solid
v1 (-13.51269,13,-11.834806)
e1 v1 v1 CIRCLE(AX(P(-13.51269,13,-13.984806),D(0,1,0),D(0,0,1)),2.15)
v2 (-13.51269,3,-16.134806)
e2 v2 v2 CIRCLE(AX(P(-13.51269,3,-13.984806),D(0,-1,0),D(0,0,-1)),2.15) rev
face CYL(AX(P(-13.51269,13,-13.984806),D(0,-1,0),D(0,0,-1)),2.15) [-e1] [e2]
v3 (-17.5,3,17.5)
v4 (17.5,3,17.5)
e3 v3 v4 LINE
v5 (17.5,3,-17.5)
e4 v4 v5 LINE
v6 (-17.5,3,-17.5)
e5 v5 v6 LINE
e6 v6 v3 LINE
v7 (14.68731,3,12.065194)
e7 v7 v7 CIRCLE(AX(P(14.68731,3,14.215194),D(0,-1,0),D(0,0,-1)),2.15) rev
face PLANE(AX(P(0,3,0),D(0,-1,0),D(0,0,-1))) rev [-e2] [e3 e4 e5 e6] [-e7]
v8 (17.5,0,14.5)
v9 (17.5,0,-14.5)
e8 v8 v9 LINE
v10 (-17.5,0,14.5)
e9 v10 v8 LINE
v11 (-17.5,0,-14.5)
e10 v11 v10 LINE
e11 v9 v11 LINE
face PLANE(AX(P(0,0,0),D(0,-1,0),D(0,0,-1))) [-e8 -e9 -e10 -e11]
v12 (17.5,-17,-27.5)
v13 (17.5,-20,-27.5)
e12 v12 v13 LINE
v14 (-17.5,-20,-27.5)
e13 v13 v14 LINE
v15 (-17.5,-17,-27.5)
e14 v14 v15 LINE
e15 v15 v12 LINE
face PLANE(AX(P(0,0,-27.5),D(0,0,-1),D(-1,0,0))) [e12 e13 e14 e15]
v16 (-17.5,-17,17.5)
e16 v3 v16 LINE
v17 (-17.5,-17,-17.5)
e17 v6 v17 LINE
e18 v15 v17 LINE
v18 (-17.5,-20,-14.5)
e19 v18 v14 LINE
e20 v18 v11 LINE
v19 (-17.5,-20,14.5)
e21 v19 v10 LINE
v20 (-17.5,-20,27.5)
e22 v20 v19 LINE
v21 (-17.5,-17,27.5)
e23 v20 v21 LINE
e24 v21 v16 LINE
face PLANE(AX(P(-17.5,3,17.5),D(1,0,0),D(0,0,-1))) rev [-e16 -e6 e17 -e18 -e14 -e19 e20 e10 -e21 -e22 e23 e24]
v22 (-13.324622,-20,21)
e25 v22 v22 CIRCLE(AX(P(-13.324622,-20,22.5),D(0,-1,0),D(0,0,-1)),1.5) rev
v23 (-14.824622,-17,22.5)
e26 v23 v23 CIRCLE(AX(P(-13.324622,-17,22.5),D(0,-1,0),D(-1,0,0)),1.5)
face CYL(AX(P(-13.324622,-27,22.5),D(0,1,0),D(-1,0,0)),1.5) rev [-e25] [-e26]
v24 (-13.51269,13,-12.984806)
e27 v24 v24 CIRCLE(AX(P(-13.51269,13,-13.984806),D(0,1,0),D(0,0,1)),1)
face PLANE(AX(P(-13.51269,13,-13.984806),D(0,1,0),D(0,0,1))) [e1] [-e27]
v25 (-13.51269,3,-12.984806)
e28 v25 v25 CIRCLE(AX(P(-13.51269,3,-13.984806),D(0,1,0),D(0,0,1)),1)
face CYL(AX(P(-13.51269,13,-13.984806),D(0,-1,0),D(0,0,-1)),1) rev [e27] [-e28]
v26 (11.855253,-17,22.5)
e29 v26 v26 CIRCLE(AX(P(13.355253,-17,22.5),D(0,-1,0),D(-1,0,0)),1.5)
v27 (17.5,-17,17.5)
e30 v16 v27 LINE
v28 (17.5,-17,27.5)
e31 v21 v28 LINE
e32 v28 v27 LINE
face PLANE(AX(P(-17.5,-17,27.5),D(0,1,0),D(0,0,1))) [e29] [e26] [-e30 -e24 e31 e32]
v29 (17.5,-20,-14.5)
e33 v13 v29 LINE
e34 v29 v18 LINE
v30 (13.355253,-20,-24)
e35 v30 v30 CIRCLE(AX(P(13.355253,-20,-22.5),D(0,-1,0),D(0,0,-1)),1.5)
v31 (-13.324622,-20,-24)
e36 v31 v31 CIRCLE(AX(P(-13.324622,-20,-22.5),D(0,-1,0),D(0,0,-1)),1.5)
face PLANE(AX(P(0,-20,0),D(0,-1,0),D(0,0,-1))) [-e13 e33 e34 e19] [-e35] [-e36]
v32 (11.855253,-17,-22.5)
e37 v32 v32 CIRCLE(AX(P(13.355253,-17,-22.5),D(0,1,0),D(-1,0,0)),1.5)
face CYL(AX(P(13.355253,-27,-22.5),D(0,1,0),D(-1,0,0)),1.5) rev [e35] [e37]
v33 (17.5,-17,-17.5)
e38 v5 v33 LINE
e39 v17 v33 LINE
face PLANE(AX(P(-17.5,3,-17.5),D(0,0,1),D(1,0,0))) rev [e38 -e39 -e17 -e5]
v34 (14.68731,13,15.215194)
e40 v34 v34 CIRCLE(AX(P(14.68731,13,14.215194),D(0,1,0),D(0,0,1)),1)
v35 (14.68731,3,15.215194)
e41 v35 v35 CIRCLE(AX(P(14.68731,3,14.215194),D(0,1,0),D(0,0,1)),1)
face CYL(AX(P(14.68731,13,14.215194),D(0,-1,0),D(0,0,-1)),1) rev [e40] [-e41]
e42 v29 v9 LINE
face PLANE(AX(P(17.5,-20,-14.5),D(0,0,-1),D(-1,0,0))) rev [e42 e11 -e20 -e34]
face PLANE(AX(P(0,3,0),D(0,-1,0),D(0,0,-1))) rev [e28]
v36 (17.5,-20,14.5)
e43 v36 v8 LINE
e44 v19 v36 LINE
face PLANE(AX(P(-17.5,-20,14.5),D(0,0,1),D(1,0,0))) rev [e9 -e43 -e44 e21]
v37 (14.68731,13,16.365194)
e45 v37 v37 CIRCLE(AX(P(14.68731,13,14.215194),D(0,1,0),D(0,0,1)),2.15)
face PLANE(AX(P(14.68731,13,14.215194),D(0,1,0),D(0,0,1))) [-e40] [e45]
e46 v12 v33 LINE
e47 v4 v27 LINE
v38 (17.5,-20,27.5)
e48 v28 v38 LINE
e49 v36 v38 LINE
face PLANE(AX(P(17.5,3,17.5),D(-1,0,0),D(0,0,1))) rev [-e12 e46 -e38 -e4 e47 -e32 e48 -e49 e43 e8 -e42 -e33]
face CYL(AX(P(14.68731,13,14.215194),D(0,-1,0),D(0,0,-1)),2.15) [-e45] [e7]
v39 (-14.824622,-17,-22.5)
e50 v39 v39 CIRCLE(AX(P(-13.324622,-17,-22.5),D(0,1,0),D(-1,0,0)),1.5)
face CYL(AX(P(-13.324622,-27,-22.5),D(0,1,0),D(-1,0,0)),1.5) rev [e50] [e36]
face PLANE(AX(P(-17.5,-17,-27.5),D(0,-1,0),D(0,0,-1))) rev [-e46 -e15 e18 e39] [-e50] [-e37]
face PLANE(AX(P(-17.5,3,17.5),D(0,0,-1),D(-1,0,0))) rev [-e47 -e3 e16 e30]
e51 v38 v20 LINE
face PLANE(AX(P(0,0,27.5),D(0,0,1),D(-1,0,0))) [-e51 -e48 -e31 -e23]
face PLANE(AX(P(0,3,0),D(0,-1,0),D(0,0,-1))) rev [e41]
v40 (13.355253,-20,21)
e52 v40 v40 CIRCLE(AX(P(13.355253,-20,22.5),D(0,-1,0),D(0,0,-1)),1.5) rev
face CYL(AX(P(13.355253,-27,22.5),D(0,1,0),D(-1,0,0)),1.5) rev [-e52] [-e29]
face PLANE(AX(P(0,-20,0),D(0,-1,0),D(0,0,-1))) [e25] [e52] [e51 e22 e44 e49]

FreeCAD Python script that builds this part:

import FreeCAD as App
import Part
import Sketcher
from FreeCAD import Vector
Q = App.Units.Quantity


def add_polygon(sketch, points):
    """Adds a closed chain of lines whose ends are joined by coincident constraints."""
    first, n = sketch.GeometryCount, len(points)
    for a, b in zip(points, points[1:] + points[:1]):
        sketch.addGeometry(Part.LineSegment(App.Vector(*a, 0), App.Vector(*b, 0)), False)
    for i in range(n):
        sketch.addConstraint(Sketcher.Constraint("Coincident", first + i, 2, first + (i + 1) % n, 1))

doc = App.newDocument("Part")
body = doc.addObject("PartDesign::Body", "Body")

# Sketch on XZ plane
sketch1 = body.newObject("Sketcher::SketchObject", "Sketch")
sketch1.AttachmentSupport = (doc.getObject("XZ_Plane"), [""])
sketch1.MapMode = "FlatFace"
add_polygon(sketch1, [(-18, -18), (-18, 18), (18, 18), (18, -18)])  # lines 0-3
sketch1.addConstraint(Sketcher.Constraint("Vertical", 0))
sketch1.addConstraint(Sketcher.Constraint("Horizontal", 1))
sketch1.addConstraint(Sketcher.Constraint("Vertical", 2))
sketch1.addConstraint(Sketcher.Constraint("Horizontal", 3))
sketch1.addConstraint(Sketcher.Constraint("Symmetric", 0, 2, 2, 2, -1, 1))
sketch1.addConstraint(Sketcher.Constraint("Equal", 3, 0))
sketch1.addConstraint(Sketcher.Constraint("DistanceX", 1, 1, 1, 2, Q("35 mm")))
pad1 = body.newObject("PartDesign::Pad", "Pad")
pad1.Profile = sketch1
pad1.Length = 3
pad1.Reversed = True

# Sketch on XZ plane
sketch2 = body.newObject("Sketcher::SketchObject", "Sketch001")
sketch2.AttachmentSupport = (doc.getObject("XZ_Plane"), [""])
sketch2.MapMode = "FlatFace"
sketch2.AttachmentOffset = App.Placement(Vector(0, 0, -3), App.Rotation())
sketch2.addGeometry(Part.Circle(Vector(-13.5, -14, 0), Vector(0, 0, 1), 2.1), False)
sketch2.addGeometry(Part.Circle(Vector(-13.5, -14, 0), Vector(0, 0, 1), 1), False)
sketch2.addGeometry(Part.Circle(Vector(14.7, 14.2, 0), Vector(0, 0, 1), 2.1), False)
sketch2.addGeometry(Part.Circle(Vector(14.7, 14.2, 0), Vector(0, 0, 1), 1), False)
sketch2.addConstraint(Sketcher.Constraint("Coincident", 1, 3, 0, 3))
sketch2.addConstraint(Sketcher.Constraint("Coincident", 3, 3, 2, 3))
sketch2.addConstraint(Sketcher.Constraint("Equal", 0, 2))
sketch2.addConstraint(Sketcher.Constraint("Equal", 1, 3))
sketch2.addConstraint(Sketcher.Constraint("Diameter", 1, Q("2 mm")))
sketch2.addConstraint(Sketcher.Constraint("Diameter", 0, Q("4.3 mm")))
sketch2.addConstraint(Sketcher.Constraint("DistanceX", 0, 3, 2, 3, Q("28.2 mm")))
sketch2.addConstraint(Sketcher.Constraint("DistanceY", 0, 3, 2, 3, Q("28.2 mm")))
sketch2.addConstraint(Sketcher.Constraint("DistanceX", 0, 3, -1, 1, Q("13.51269 mm")))
sketch2.addConstraint(Sketcher.Constraint("DistanceY", 0, 3, -1, 1, Q("13.984806 mm")))
pad2 = body.newObject("PartDesign::Pad", "Pad001")
pad2.Profile = sketch2
pad2.Length = 10
pad2.Reversed = True

# Sketch on XZ plane
sketch3 = body.newObject("Sketcher::SketchObject", "Sketch002")
sketch3.AttachmentSupport = (doc.getObject("XZ_Plane"), [""])
sketch3.MapMode = "FlatFace"
add_polygon(sketch3, [(-17.5, 17.5), (-17.5, 14.5), (17.5, 14.5), (17.5, 17.5)])  # lines 0-3
add_polygon(sketch3, [(-17.5, -14.5), (-17.5, -17.5), (17.5, -17.5), (17.5, -14.5)])  # lines 4-7
sketch3.addConstraint(Sketcher.Constraint("Vertical", 0))
sketch3.addConstraint(Sketcher.Constraint("Horizontal", 1))
sketch3.addConstraint(Sketcher.Constraint("Vertical", 2))
sketch3.addConstraint(Sketcher.Constraint("Horizontal", 3))
sketch3.addConstraint(Sketcher.Constraint("Vertical", 4))
sketch3.addConstraint(Sketcher.Constraint("Horizontal", 5))
sketch3.addConstraint(Sketcher.Constraint("Vertical", 6))
sketch3.addConstraint(Sketcher.Constraint("Horizontal", 7))
sketch3.addConstraint(Sketcher.Constraint("Symmetric", 2, 2, 4, 2, -1, 1))
sketch3.addConstraint(Sketcher.Constraint("Symmetric", 0, 2, 6, 2, -1, 1))
sketch3.addConstraint(Sketcher.Constraint("Vertical", 3, 2, 4, 2))
sketch3.addConstraint(Sketcher.Constraint("DistanceX", 1, 1, 1, 2, Q("35 mm")))
sketch3.addConstraint(Sketcher.Constraint("DistanceY", 0, 2, 0, 1, Q("3 mm")))
sketch3.addConstraint(Sketcher.Constraint("DistanceY", 4, 2, 0, 2, Q("32 mm")))
pad3 = body.newObject("PartDesign::Pad", "Pad002")
pad3.Profile = sketch3
pad3.Length = 20

# Sketch on XY plane
sketch4 = body.newObject("Sketcher::SketchObject", "Sketch003")
sketch4.AttachmentSupport = (doc.getObject("XY_Plane"), [""])
sketch4.MapMode = "FlatFace"
sketch4.AttachmentOffset = App.Placement(Vector(0, 0, -17.5), App.Rotation())
add_polygon(sketch4, [(17.5, -17), (17.5, -20), (-17.5, -20), (-17.5, -17)])  # lines 0-3
sketch4.addConstraint(Sketcher.Constraint("Vertical", 0))
sketch4.addConstraint(Sketcher.Constraint("Horizontal", 1))
sketch4.addConstraint(Sketcher.Constraint("Vertical", 2))
sketch4.addConstraint(Sketcher.Constraint("Horizontal", 3))
sketch4.addConstraint(Sketcher.Constraint("DistanceX", 1, 2, 1, 1, Q("35 mm")))
sketch4.addConstraint(Sketcher.Constraint("DistanceY", 0, 2, 0, 1, Q("3 mm")))
sketch4.addConstraint(Sketcher.Constraint("DistanceY", 0, 2, -1, 1, Q("20 mm")))
sketch4.addConstraint(Sketcher.Constraint("DistanceX", -1, 1, 0, 2, Q("17.5 mm")))
pad4 = body.newObject("PartDesign::Pad", "Pad003")
pad4.Profile = sketch4
pad4.Length = 10
pad4.Reversed = True

# Sketch on XZ plane
sketch5 = body.newObject("Sketcher::SketchObject", "Sketch004")
sketch5.AttachmentSupport = (doc.getObject("XZ_Plane"), [""])
sketch5.MapMode = "FlatFace"
sketch5.AttachmentOffset = App.Placement(Vector(0, 0, 17), App.Rotation())
sketch5.addGeometry(Part.Circle(Vector(-13.3, -22.5, 0), Vector(0, 0, 1), 1.5), False)
sketch5.addGeometry(Part.Circle(Vector(13.4, -22.5, 0), Vector(0, 0, 1), 1.5), False)
sketch5.addConstraint(Sketcher.Constraint("Equal", 0, 1))
sketch5.addConstraint(Sketcher.Constraint("Horizontal", 0, 3, 1, 3))
sketch5.addConstraint(Sketcher.Constraint("Diameter", 0, Q("3 mm")))
sketch5.addConstraint(Sketcher.Constraint("DistanceY", 0, 3, -1, 1, Q("22.5 mm")))
sketch5.addConstraint(Sketcher.Constraint("DistanceX", 0, 3, -1, 1, Q("13.324622 mm")))
sketch5.addConstraint(Sketcher.Constraint("DistanceX", -1, 1, 1, 3, Q("13.355253 mm")))
pocket1 = body.newObject("PartDesign::Pocket", "Pocket")
pocket1.Profile = sketch5
pocket1.Length = 10
pocket1.Reversed = True
doc.recompute()

mirrored = body.newObject("PartDesign::Mirrored", "Mirrored")
mirrored.Originals = [pad4, pocket1]
mirrored.MirrorPlane = (doc.getObject("XY_Plane"), [""])
body.Tip = mirrored

doc.recompute()
